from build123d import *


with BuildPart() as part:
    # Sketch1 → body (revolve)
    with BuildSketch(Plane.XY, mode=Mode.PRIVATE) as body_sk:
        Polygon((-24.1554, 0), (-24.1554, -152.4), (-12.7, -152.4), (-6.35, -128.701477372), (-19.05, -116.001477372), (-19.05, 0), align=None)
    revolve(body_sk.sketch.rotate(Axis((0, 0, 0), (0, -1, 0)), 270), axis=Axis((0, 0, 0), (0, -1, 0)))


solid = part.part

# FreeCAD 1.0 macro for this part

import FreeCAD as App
import Part
import Sketcher
Q = App.Units.Quantity

doc = App.newDocument("Part")
body = doc.addObject("PartDesign::Body", "Body")

sketch1 = body.newObject("Sketcher::SketchObject", "Sketch")
sketch1.AttachmentSupport = (doc.getObject("XY_Plane"), [""])
sketch1.MapMode = "FlatFace"
sketch1.addGeometry([
    Part.LineSegment(App.Vector(-24, 0, 0), App.Vector(-24, -152, 0)),
    Part.LineSegment(App.Vector(-24, -152, 0), App.Vector(-13, -152, 0)),
    Part.LineSegment(App.Vector(-13, -152, 0), App.Vector(-6, -129, 0)),
    Part.LineSegment(App.Vector(-6, -129, 0), App.Vector(-19, -116, 0)),
    Part.LineSegment(App.Vector(-19, -116, 0), App.Vector(-19, 0, 0)),
    Part.LineSegment(App.Vector(-19, 0, 0), App.Vector(-24, 0, 0)),
], False)
sketch1.addConstraint([
    Sketcher.Constraint("Coincident", 0, 2, 1, 1),
    Sketcher.Constraint("Coincident", 1, 2, 2, 1),
    Sketcher.Constraint("Coincident", 2, 2, 3, 1),
    Sketcher.Constraint("Coincident", 3, 2, 4, 1),
    Sketcher.Constraint("Coincident", 4, 2, 5, 1),
    Sketcher.Constraint("Coincident", 5, 2, 0, 1),
    Sketcher.Constraint("Vertical", 0),
    Sketcher.Constraint("Horizontal", 1),
    Sketcher.Constraint("Vertical", 4),
    Sketcher.Constraint("Horizontal", 5),
    Sketcher.Constraint("PointOnObject", 4, 2, -1),
    Sketcher.Constraint("DistanceY", 0, 2, 0, 1, Q("6 in")),
    Sketcher.Constraint("Angle", 2, Q("75 deg")),
    Sketcher.Constraint("Angle", 3, Q("135 deg")),
    Sketcher.Constraint("DistanceX", 1, 2, -1, 1, Q("0.5 in")),
    Sketcher.Constraint("DistanceX", 3, 2, 2, 2, Q("0.5 in")),
    Sketcher.Constraint("DistanceX", 1, 1, 1, 2, Q("0.451 in")),
    Sketcher.Constraint("DistanceX", 5, 2, 5, 1, Q("0.201 in")),
])
revolution = body.newObject("PartDesign::Revolution", "Revolution")
revolution.Profile = sketch1
revolution.ReferenceAxis = (sketch1, ["V_Axis"])
revolution.Angle = 360

doc.recompute()
